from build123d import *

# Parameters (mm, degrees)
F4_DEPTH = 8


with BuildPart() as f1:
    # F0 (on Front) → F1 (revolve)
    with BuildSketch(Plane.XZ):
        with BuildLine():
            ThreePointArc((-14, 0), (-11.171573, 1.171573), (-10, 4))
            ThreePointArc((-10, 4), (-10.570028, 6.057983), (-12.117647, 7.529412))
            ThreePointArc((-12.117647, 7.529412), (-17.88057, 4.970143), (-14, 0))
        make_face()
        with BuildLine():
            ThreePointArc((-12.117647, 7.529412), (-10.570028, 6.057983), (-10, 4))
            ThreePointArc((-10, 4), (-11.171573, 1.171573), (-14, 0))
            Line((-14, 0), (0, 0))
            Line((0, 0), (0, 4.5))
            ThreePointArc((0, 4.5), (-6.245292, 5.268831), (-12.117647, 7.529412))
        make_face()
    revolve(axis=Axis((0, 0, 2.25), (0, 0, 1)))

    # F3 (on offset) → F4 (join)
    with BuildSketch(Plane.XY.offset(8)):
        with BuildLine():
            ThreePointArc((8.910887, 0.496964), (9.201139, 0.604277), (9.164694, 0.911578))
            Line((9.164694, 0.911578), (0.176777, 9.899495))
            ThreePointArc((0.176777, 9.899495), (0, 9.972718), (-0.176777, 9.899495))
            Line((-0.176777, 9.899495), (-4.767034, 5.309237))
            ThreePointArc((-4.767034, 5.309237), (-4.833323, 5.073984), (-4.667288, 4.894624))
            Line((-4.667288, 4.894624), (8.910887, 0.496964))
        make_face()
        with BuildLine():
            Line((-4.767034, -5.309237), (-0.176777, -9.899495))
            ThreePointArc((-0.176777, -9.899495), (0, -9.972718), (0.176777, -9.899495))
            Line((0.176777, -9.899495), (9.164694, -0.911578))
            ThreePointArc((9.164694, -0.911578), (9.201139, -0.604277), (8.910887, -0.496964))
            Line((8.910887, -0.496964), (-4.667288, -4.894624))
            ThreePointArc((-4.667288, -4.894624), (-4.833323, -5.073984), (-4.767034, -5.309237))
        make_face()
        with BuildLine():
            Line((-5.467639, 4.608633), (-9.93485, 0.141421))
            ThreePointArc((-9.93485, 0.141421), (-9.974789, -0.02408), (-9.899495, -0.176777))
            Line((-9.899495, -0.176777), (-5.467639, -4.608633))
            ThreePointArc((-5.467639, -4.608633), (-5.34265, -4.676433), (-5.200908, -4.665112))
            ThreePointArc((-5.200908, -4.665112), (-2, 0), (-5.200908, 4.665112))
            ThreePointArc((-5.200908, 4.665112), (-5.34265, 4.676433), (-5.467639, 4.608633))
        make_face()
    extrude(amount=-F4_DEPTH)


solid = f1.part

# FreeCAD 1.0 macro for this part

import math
import FreeCAD as App
import Part
import Sketcher
from FreeCAD import Vector

doc = App.newDocument("Part")
body = doc.addObject("PartDesign::Body", "Body")

sketch1 = body.newObject("Sketcher::SketchObject", "Sketch")
sketch1.AttachmentSupport = (doc.getObject("XZ_Plane"), [""])
sketch1.MapMode = "FlatFace"
sketch1.addGeometry([
    Part.ArcOfCircle(Part.Circle(Vector(-14, 4, 0), Vector(0, 0, 1), 4), math.radians(62), math.radians(270)),
    Part.LineSegment(Vector(-14, 0, 0), Vector(0, 0, 0)),
    Part.LineSegment(Vector(0, 0, 0), Vector(0, 4.5, 0)),
    Part.ArcOfCircle(Part.Circle(Vector(0, 30.3, 0), Vector(0, 0, 1), 25.8), math.radians(-118), math.radians(-90)),
], False)
sketch1.addConstraint([
    Sketcher.Constraint("Tangent", 0, 2, 1, 1),
    Sketcher.Constraint("Coincident", 1, 2, 2, 1),
    Sketcher.Constraint("Coincident", 2, 2, 3, 2),
    Sketcher.Constraint("Tangent", 3, 1, 0, 1),
    Sketcher.Constraint("Horizontal", 1),
    Sketcher.Constraint("Vertical", 2),
    Sketcher.Constraint("Coincident", 1, 2, -1, 1),
    Sketcher.Constraint("Radius", 0, 4.0),
    Sketcher.Constraint("DistanceX", 1, 1, 1, 2, 14.0),
    Sketcher.Constraint("DistanceY", 2, 1, 2, 2, 4.5),
    Sketcher.Constraint("Radius", 3, 25.750011),
])
revolution = body.newObject("PartDesign::Revolution", "Revolution")
revolution.Profile = sketch1
revolution.ReferenceAxis = (sketch1, ["V_Axis"])
revolution.Angle = 360

sketch2 = body.newObject("Sketcher::SketchObject", "Sketch001")
sketch2.AttachmentSupport = (doc.getObject("XY_Plane"), [""])
sketch2.MapMode = "FlatFace"
sketch2.AttachmentOffset = App.Placement(Vector(0, 0, 8), App.Rotation())
sketch2.addGeometry([
    Part.ArcOfCircle(Part.Circle(Vector(8.99, 0.73, 0), Vector(0, 0, 1), 0.25), math.radians(-108), math.radians(45)),
    Part.LineSegment(Vector(9.16, 0.91, 0), Vector(0.18, 9.9, 0)),
    Part.ArcOfCircle(Part.Circle(Vector(0, 9.72, 0), Vector(0, 0, 1), 0.25), math.radians(45), math.radians(135)),
    Part.LineSegment(Vector(-0.18, 9.9, 0), Vector(-4.77, 5.31, 0)),
    Part.ArcOfCircle(Part.Circle(Vector(-4.59, 5.13, 0), Vector(0, 0, 1), 0.25), math.radians(135), math.radians(252)),
    Part.LineSegment(Vector(-4.67, 4.89, 0), Vector(8.91, 0.5, 0)),
    Part.LineSegment(Vector(-4.77, -5.31, 0), Vector(-0.18, -9.9, 0)),
    Part.ArcOfCircle(Part.Circle(Vector(0, -9.72, 0), Vector(0, 0, 1), 0.25), math.radians(-135), math.radians(-45)),
    Part.LineSegment(Vector(0.18, -9.9, 0), Vector(9.16, -0.91, 0)),
    Part.ArcOfCircle(Part.Circle(Vector(8.99, -0.73, 0), Vector(0, 0, 1), 0.25), math.radians(-45), math.radians(108)),
    Part.LineSegment(Vector(8.91, -0.5, 0), Vector(-4.67, -4.89, 0)),
    Part.ArcOfCircle(Part.Circle(Vector(-4.59, -5.13, 0), Vector(0, 0, 1), 0.25), math.radians(108), math.radians(225)),
    Part.LineSegment(Vector(-5.47, 4.61, 0), Vector(-9.93, 0.14, 0)),
    Part.ArcOfCircle(Part.Circle(Vector(-9.73, 0, 0), Vector(0, 0, 1), 0.25), math.radians(147), math.radians(226)),
    Part.LineSegment(Vector(-9.9, -0.18, 0), Vector(-5.47, -4.61, 0)),
    Part.ArcOfCircle(Part.Circle(Vector(-5.29, -4.43, 0), Vector(0, 0, 1), 0.25), math.radians(-135), math.radians(-69)),
    Part.ArcOfCircle(Part.Circle(Vector(-7, 0, 0), Vector(0, 0, 1), 5), math.radians(-69), math.radians(69)),
    Part.ArcOfCircle(Part.Circle(Vector(-5.29, 4.43, 0), Vector(0, 0, 1), 0.25), math.radians(69), math.radians(135)),
], False)
sketch2.addConstraint([
    Sketcher.Constraint("Tangent", 0, 2, 1, 1),
    Sketcher.Constraint("Coincident", 1, 2, 2, 1),
    Sketcher.Constraint("Coincident", 2, 2, 3, 1),
    Sketcher.Constraint("Coincident", 3, 2, 4, 1),
    Sketcher.Constraint("Coincident", 4, 2, 5, 1),
    Sketcher.Constraint("Tangent", 5, 2, 0, 1),
    Sketcher.Constraint("Coincident", 6, 2, 7, 1),
    Sketcher.Constraint("Coincident", 7, 2, 8, 1),
    Sketcher.Constraint("Tangent", 8, 2, 9, 1),
    Sketcher.Constraint("Tangent", 9, 2, 10, 1),
    Sketcher.Constraint("Coincident", 10, 2, 11, 1),
    Sketcher.Constraint("Coincident", 11, 2, 6, 1),
    Sketcher.Constraint("Coincident", 12, 2, 13, 1),
    Sketcher.Constraint("Coincident", 13, 2, 14, 1),
    Sketcher.Constraint("Coincident", 14, 2, 15, 1),
    Sketcher.Constraint("Coincident", 15, 2, 16, 1),
    Sketcher.Constraint("Coincident", 16, 2, 17, 1),
    Sketcher.Constraint("Coincident", 17, 2, 12, 1),
    Sketcher.Constraint("Equal", 0, 2),
    Sketcher.Constraint("Equal", 0, 4),
    Sketcher.Constraint("Equal", 2, 7),
    Sketcher.Constraint("Equal", 7, 9),
    Sketcher.Constraint("Equal", 9, 11),
    Sketcher.Constraint("Equal", 9, 13),
    Sketcher.Constraint("Equal", 7, 15),
    Sketcher.Constraint("Equal", 15, 17),
    Sketcher.Constraint("Symmetric", 2, 3, 7, 3, -1, 1),
    Sketcher.Constraint("Symmetric", 1, 2, 2, 2, -2),
    Sketcher.Constraint("Symmetric", 0, 3, 9, 3, -1),
    Sketcher.Constraint("Symmetric", 4, 3, 11, 3, -1),
    Sketcher.Constraint("Symmetric", 15, 3, 17, 3, -1),
    Sketcher.Constraint("Perpendicular", 1, 3),
    Sketcher.Constraint("Perpendicular", 3, 6),
    Sketcher.Constraint("Parallel", 8, 12),
    Sketcher.Constraint("Perpendicular", 12, 14),
    Sketcher.Constraint("Horizontal", 6, 2, 7, 2),
    Sketcher.Constraint("Vertical", 2, 2, 6, 2),
    Sketcher.Constraint("Vertical", 4, 2, 10, 2),
    Sketcher.Constraint("Vertical", 3, 2, 11, 2),
    Sketcher.Constraint("Vertical", 15, 2, 16, 2),
    Sketcher.Constraint("Vertical", 14, 2, 17, 2),
    Sketcher.Constraint("Radius", 16, 5.0),
    Sketcher.Constraint("Radius", 0, 0.25),
    Sketcher.Constraint("DistanceX", 16, 3, -1, 1, 7.0),
    Sketcher.Constraint("DistanceY", -1, 1, 0, 3, 0.734801),
    Sketcher.Constraint("DistanceY", 13, 2, 12, 2, 0.318198),
    Sketcher.Constraint("Distance", 5, 14.27257),
    Sketcher.Constraint("Distance", 12, 6.317591),
    Sketcher.Constraint("Distance", 14, 6.267591),
    Sketcher.Constraint("DistanceX", 4, 3, -1, 1, 4.590259),
    Sketcher.Constraint("DistanceY", -1, 1, 4, 3, 5.13246),
    Sketcher.Constraint("DistanceX", 15, 3, -1, 1, 5.290862),
    Sketcher.Constraint("DistanceY", 2, 3, 1, 2, 0.176778),
    Sketcher.Constraint("DistanceY", 3, 2, 2, 3, 4.41348),
    Sketcher.Constraint("DistanceY", 15, 2, 15, 3, 0.233259),
])
pad1 = body.newObject("PartDesign::Pad", "Pad")
pad1.Profile = sketch2
pad1.Length = 8
pad1.Reversed = True

doc.recompute()
